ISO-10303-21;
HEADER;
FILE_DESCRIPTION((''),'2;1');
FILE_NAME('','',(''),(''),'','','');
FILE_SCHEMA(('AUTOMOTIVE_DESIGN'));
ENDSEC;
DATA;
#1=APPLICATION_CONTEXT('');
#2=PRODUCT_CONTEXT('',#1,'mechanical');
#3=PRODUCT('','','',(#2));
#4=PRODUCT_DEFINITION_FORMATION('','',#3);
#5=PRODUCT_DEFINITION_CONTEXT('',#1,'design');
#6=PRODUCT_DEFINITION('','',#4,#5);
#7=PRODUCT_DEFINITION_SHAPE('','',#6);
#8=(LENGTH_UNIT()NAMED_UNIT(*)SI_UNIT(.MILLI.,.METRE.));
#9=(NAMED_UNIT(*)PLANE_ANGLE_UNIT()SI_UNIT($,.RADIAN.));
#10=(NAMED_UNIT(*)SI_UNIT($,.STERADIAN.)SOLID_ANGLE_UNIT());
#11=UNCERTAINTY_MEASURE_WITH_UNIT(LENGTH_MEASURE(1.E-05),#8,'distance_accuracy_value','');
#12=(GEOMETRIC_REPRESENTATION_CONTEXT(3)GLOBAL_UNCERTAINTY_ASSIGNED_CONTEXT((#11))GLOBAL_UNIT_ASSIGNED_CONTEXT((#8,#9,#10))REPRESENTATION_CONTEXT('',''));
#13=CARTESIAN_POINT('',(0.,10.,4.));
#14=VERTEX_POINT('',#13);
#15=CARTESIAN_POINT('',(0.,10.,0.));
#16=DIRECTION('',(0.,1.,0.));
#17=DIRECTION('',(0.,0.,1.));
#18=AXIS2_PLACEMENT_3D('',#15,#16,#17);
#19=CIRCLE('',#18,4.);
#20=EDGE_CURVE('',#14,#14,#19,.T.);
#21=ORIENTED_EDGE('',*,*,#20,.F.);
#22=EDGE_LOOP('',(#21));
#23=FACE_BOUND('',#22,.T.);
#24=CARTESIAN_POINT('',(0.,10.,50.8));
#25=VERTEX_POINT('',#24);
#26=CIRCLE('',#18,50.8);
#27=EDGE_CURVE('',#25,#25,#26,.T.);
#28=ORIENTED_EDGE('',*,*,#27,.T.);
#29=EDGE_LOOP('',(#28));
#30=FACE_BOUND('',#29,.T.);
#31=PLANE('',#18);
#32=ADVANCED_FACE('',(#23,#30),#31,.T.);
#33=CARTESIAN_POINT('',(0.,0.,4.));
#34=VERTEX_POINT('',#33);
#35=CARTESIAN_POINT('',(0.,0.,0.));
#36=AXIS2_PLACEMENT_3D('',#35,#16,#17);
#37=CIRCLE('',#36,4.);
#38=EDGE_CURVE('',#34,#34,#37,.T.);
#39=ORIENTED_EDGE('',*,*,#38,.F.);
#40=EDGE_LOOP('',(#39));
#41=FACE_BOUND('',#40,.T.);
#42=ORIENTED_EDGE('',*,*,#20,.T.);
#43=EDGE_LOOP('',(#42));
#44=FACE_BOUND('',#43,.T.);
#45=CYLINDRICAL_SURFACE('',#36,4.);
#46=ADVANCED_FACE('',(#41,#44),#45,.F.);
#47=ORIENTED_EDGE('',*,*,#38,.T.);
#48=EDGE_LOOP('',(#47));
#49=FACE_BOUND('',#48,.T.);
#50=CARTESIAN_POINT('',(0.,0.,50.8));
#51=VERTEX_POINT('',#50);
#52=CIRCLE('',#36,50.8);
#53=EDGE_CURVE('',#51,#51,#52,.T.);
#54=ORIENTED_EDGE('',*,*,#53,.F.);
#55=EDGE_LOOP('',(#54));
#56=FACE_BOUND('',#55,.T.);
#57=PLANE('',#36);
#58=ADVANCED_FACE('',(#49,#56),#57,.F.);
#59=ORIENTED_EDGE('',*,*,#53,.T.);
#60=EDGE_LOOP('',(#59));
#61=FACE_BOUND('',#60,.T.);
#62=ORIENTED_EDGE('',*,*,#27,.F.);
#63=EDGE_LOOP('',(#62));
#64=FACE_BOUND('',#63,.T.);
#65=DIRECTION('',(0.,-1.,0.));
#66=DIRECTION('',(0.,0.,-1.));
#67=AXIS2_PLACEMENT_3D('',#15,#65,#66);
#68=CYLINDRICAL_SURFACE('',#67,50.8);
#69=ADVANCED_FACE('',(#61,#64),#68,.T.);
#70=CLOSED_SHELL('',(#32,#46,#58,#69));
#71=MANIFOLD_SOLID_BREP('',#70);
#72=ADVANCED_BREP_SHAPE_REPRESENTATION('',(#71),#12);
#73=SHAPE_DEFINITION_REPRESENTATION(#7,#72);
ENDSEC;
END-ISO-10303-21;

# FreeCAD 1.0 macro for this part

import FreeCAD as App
import Part
import Sketcher

V = App.Vector

doc = App.newDocument("Part")
params = doc.addObject("Spreadsheet::Sheet", "Params")
for row, (alias, value) in enumerate([
    ("sketch1_diameter", "101.6 mm"),
    ("pad1_length", "10 mm"),
    ("sketch2_diameter", "8 mm"),
], start=1):
    params.set(f"A{row}", alias)
    params.set(f"B{row}", "=" + value)
    params.setAlias(f"B{row}", alias)

body = doc.addObject("PartDesign::Body", "Body")

# Sketch on XZ plane
sketch1 = doc.addObject("Sketcher::SketchObject", "Sketch")
body.addObject(sketch1)
sketch1.AttachmentSupport = (doc.XZ_Plane, [""])
sketch1.MapMode = "FlatFace"
sketch1.addGeometry(Part.Circle(V(0, 0, 0), V(0, 0, 1), 50.8), False)
sketch1.addConstraint([
    Sketcher.Constraint("Coincident", 0, 3, -1, 1),
    Sketcher.Constraint("Diameter", 0, 101.6),
])
sketch1.setExpression("Constraints[1]", "Params.sketch1_diameter")
pad1 = doc.addObject("PartDesign::Pad", "Pad")
body.addObject(pad1)
pad1.Profile = sketch1
pad1.setExpression("Length", "Params.pad1_length")
pad1.Reversed = True

# Sketch on XZ plane
sketch2 = doc.addObject("Sketcher::SketchObject", "Sketch001")
body.addObject(sketch2)
sketch2.AttachmentSupport = (doc.XZ_Plane, [""])
sketch2.MapMode = "FlatFace"
sketch2.AttachmentOffset = App.Placement(V(0, 0, -10), App.Rotation())
sketch2.addGeometry(Part.Circle(V(0, 0, 0), V(0, 0, 1), 4), False)
sketch2.addConstraint([
    Sketcher.Constraint("Coincident", 0, 3, -1, 1),
    Sketcher.Constraint("Diameter", 0, 8.0),
])
sketch2.setExpression("Constraints[1]", "Params.sketch2_diameter")
pocket1 = doc.addObject("PartDesign::Pocket", "Pocket")
body.addObject(pocket1)
pocket1.Profile = sketch2
pocket1.Type = "ThroughAll"
pocket1.Reversed = True

doc.recompute()
